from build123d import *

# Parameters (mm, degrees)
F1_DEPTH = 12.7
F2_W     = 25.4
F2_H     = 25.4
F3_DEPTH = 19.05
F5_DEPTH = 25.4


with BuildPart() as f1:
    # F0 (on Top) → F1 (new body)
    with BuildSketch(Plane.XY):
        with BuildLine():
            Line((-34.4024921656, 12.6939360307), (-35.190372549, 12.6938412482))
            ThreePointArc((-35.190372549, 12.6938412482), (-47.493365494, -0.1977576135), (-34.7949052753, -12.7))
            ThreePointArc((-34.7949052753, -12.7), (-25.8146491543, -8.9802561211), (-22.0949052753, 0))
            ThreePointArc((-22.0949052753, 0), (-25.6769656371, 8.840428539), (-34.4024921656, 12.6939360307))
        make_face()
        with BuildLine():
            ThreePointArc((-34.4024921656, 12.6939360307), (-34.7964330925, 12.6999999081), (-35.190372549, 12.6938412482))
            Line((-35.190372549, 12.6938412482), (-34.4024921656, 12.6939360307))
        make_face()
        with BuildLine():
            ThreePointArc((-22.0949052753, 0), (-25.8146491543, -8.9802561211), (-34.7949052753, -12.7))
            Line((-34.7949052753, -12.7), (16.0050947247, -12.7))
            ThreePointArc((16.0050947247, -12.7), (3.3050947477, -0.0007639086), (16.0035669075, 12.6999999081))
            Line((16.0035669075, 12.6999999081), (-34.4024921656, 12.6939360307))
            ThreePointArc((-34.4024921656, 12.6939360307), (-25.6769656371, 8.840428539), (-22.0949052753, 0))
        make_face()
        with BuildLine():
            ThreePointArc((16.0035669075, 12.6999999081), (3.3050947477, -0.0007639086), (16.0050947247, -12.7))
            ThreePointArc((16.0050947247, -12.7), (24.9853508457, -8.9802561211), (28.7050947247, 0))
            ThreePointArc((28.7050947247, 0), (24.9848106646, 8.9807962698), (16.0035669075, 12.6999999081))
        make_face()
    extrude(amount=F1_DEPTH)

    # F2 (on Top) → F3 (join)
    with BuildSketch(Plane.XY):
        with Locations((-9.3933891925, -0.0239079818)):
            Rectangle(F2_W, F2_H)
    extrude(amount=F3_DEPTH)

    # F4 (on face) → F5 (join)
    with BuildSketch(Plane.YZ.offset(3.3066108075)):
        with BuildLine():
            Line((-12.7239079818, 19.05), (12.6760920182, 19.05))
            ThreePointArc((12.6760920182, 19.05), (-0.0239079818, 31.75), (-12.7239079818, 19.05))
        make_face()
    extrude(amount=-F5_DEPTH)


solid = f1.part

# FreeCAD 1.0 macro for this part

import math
import FreeCAD as App
import Part
import Sketcher
from FreeCAD import Vector
Q = App.Units.Quantity


def add_polygon(sketch, points):
    """Adds a closed chain of lines whose ends are joined by coincident constraints."""
    first, n = sketch.GeometryCount, len(points)
    for a, b in zip(points, points[1:] + points[:1]):
        sketch.addGeometry(Part.LineSegment(App.Vector(*a, 0), App.Vector(*b, 0)), False)
    for i in range(n):
        sketch.addConstraint(Sketcher.Constraint("Coincident", first + i, 2, first + (i + 1) % n, 1))

doc = App.newDocument("Part")
params = doc.addObject("Spreadsheet::Sheet", "Params")
for row, (alias, value) in enumerate([
    ("sketch1_radius", "0.5 in"),
    ("sketch1_width", "2 in"),
    ("pad1_length", "0.5 in"),
    ("sketch2_width", "1 in"),
    ("pad2_length", "0.75 in"),
    ("sketch3_radius", "0.5 in"),
    ("pad3_length", "1 in"),
], start=1):
    params.set(f"A{row}", alias)
    params.set(f"B{row}", "=" + value)
    params.setAlias(f"B{row}", alias)

body = doc.addObject("PartDesign::Body", "Body")

sketch1 = body.newObject("Sketcher::SketchObject", "Sketch")
sketch1.AttachmentSupport = (doc.getObject("XY_Plane"), [""])
sketch1.MapMode = "FlatFace"
sketch1.addGeometry(Part.ArcOfCircle(Part.Circle(Vector(-34.8, 0, 0), Vector(0, 0, 1), 12.7), math.radians(92), math.radians(270)), False)
sketch1.addGeometry(Part.LineSegment(Vector(-34.8, -12.7, 0), Vector(16, -12.7, 0)), False)
sketch1.addGeometry(Part.ArcOfCircle(Part.Circle(Vector(16, 0, 0), Vector(0, 0, 1), 12.7), math.radians(-90), math.radians(0)), False)
sketch1.addGeometry(Part.ArcOfCircle(Part.Circle(Vector(16, 0, 0), Vector(0, 0, 1), 12.7), math.radians(0), math.radians(90)), False)
sketch1.addGeometry(Part.LineSegment(Vector(16, 12.7, 0), Vector(-34.4, 12.7, 0)), False)
sketch1.addGeometry(Part.ArcOfCircle(Part.Circle(Vector(-34.8, 0, 0), Vector(0, 0, 1), 12.7), math.radians(88.23), math.radians(91.78)), False)
sketch1.addConstraint(Sketcher.Constraint("Tangent", 0, 2, 1, 1))
sketch1.addConstraint(Sketcher.Constraint("Tangent", 1, 2, 2, 1))
sketch1.addConstraint(Sketcher.Constraint("Tangent", 2, 2, 3, 1))
sketch1.addConstraint(Sketcher.Constraint("Tangent", 3, 2, 4, 1))
sketch1.addConstraint(Sketcher.Constraint("Coincident", 4, 2, 5, 1))
sketch1.addConstraint(Sketcher.Constraint("Tangent", 5, 2, 0, 1))
sketch1.addConstraint(Sketcher.Constraint("Horizontal", 1))
sketch1.addConstraint(Sketcher.Constraint("Equal", 0, 2))
sketch1.addConstraint(Sketcher.Constraint("Equal", 2, 3))
sketch1.addConstraint(Sketcher.Constraint("Equal", 3, 5))
sketch1.addConstraint(Sketcher.Constraint("PointOnObject", 0, 3, -1))
sketch1.addConstraint(Sketcher.Constraint("PointOnObject", 2, 2, -1))
sketch1.addConstraint(Sketcher.Constraint("Radius", 0, Q("0.5 in")))
sketch1.addConstraint(Sketcher.Constraint("DistanceX", 1, 1, 1, 2, Q("2 in")))
sketch1.addConstraint(Sketcher.Constraint("Distance", 4, Q("50.406059 mm")))
sketch1.addConstraint(Sketcher.Constraint("DistanceY", -1, 1, 5, 2, Q("12.693841 mm")))
sketch1.addConstraint(Sketcher.Constraint("DistanceX", 0, 3, -1, 1, Q("34.794905 mm")))
sketch1.setExpression("Constraints[12]", "Params.sketch1_radius")
sketch1.setExpression("Constraints[13]", "Params.sketch1_width")
pad1 = body.newObject("PartDesign::Pad", "Pad")
pad1.Profile = sketch1
pad1.setExpression("Length", "Params.pad1_length")

sketch2 = body.newObject("Sketcher::SketchObject", "Sketch001")
sketch2.AttachmentSupport = (doc.getObject("XY_Plane"), [""])
sketch2.MapMode = "FlatFace"
add_polygon(sketch2, [(-22, 13), (-22, -13), (3, -13), (3, 13)])
sketch2.addConstraint(Sketcher.Constraint("Vertical", 0))
sketch2.addConstraint(Sketcher.Constraint("Horizontal", 1))
sketch2.addConstraint(Sketcher.Constraint("Vertical", 2))
sketch2.addConstraint(Sketcher.Constraint("Horizontal", 3))
sketch2.addConstraint(Sketcher.Constraint("Equal", 3, 0))
sketch2.addConstraint(Sketcher.Constraint("DistanceX", 1, 1, 1, 2, Q("1 in")))
sketch2.addConstraint(Sketcher.Constraint("DistanceX", 0, 2, -1, 1, Q("22.093389 mm")))
sketch2.addConstraint(Sketcher.Constraint("DistanceY", 0, 2, -1, 1, Q("12.723908 mm")))
sketch2.setExpression("Constraints[9]", "Params.sketch2_width")
pad2 = body.newObject("PartDesign::Pad", "Pad001")
pad2.Profile = sketch2
pad2.setExpression("Length", "Params.pad2_length")

sketch3 = body.newObject("Sketcher::SketchObject", "Sketch002")
sketch3.AttachmentSupport = (doc.getObject("YZ_Plane"), [""])
sketch3.MapMode = "FlatFace"
sketch3.AttachmentOffset = App.Placement(Vector(0, 0, 3.306611), App.Rotation())
sketch3.addGeometry(Part.LineSegment(Vector(-13, 19, 0), Vector(13, 19, 0)), False)
sketch3.addGeometry(Part.ArcOfCircle(Part.Circle(Vector(0, 19, 0), Vector(0, 0, 1), 13), math.radians(0), math.radians(180)), False)
sketch3.addConstraint(Sketcher.Constraint("Coincident", 0, 1, 1, 2))
sketch3.addConstraint(Sketcher.Constraint("Coincident", 1, 1, 0, 2))
sketch3.addConstraint(Sketcher.Constraint("Horizontal", 0))
sketch3.addConstraint(Sketcher.Constraint("Horizontal", 1, 3, 0, 1))
sketch3.addConstraint(Sketcher.Constraint("Radius", 1, Q("0.5 in")))
sketch3.addConstraint(Sketcher.Constraint("DistanceY", -1, 1, 1, 3, Q("0.75 in")))
sketch3.addConstraint(Sketcher.Constraint("DistanceX", 1, 3, -1, 1, Q("0.023908 mm")))
sketch3.setExpression("Constraints[4]", "Params.sketch3_radius")
pad3 = body.newObject("PartDesign::Pad", "Pad002")
pad3.Profile = sketch3
pad3.setExpression("Length", "Params.pad3_length")
pad3.Reversed = True

doc.recompute()
